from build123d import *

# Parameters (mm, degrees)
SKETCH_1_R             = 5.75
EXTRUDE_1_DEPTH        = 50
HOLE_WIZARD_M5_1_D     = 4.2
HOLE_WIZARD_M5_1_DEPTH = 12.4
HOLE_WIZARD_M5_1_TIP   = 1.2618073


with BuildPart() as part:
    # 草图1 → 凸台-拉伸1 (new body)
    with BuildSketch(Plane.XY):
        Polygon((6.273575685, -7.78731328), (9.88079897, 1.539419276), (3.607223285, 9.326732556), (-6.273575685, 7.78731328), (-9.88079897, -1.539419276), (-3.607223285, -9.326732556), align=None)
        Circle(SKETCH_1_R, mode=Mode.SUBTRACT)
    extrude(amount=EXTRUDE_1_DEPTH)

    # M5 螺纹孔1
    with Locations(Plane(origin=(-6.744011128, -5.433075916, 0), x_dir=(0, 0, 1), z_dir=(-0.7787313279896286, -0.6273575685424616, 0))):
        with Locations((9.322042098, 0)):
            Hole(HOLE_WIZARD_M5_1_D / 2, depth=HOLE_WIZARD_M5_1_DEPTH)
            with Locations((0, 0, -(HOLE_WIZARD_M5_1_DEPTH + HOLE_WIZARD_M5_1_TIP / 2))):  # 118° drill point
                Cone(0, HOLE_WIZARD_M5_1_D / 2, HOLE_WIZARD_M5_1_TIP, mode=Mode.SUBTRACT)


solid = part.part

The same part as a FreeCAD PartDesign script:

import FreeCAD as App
import Part
import Sketcher
Q = App.Units.Quantity


def add_polygon(sketch, points):
    """Adds a closed chain of lines whose ends are joined by coincident constraints."""
    first, n = sketch.GeometryCount, len(points)
    for a, b in zip(points, points[1:] + points[:1]):
        sketch.addGeometry(Part.LineSegment(App.Vector(*a, 0), App.Vector(*b, 0)), False)
    for i in range(n):
        sketch.addConstraint(Sketcher.Constraint("Coincident", first + i, 2, first + (i + 1) % n, 1))

doc = App.newDocument("Part")
params = doc.addObject("Spreadsheet::Sheet", "Params")
for row, (alias, value) in enumerate([
    ("sketch1_diameter", "11.5 mm"),
    ("sketch1_length", "10 mm"),
    ("pad1_length", "50 mm"),
    ("sketch2_diameter", "4.2 mm"),
    ("hole_diameter", "4.2 mm"),
    ("hole_depth", "12.4 mm"),
], start=1):
    params.set(f"A{row}", alias)
    params.set(f"B{row}", "=" + value)
    params.setAlias(f"B{row}", alias)

body = doc.addObject("PartDesign::Body", "Body")

sketch1 = body.newObject("Sketcher::SketchObject", "Sketch")
sketch1.AttachmentSupport = (doc.getObject("XY_Plane"), [""])
sketch1.MapMode = "FlatFace"
add_polygon(sketch1, [(6.273576, -7.787313), (9.880799, 1.539419), (3.607223, 9.326733), (-6.273576, 7.787313), (-9.880799, -1.539419), (-3.607223, -9.326733)])
sketch1.addGeometry(Part.Circle(App.Vector(0, 0, 0), App.Vector(0, 0, 1), 5.75), False)
sketch1.addConstraint([
    Sketcher.Constraint("Coincident", 6, 3, -1, 1),
    Sketcher.Constraint("Symmetric", 0, 2, 3, 2, -1, 1),
    Sketcher.Constraint("Symmetric", 1, 2, 4, 2, -1, 1),
    Sketcher.Constraint("Symmetric", 2, 2, 5, 2, -1, 1),
    Sketcher.Constraint("Equal", 0, 1),
    Sketcher.Constraint("Equal", 1, 2),
    Sketcher.Constraint("Diameter", 6, Q("11.5 mm")),
    Sketcher.Constraint("Distance", 0, Q("10 mm")),
    Sketcher.Constraint("DistanceX", -1, 1, 0, 2, Q("9.880799 mm")),
    Sketcher.Constraint("DistanceX", 2, 2, 1, 2, Q("9.880799 mm")),
    Sketcher.Constraint("DistanceY", -1, 1, 0, 2, Q("1.539419 mm")),
])
sketch1.setExpression("Constraints[12]", "Params.sketch1_diameter")
sketch1.setExpression("Constraints[13]", "Params.sketch1_length")
pad1 = body.newObject("PartDesign::Pad", "Pad")
pad1.Profile = sketch1
pad1.setExpression("Length", "Params.pad1_length")

sketch2 = body.newObject("Sketcher::SketchObject", "Sketch001")
sketch2.Placement = App.Placement(App.Vector(-6.744011, -5.433076, 0), App.Rotation(App.Vector(0, 0, 1), App.Vector(-0.627357569, 0.778731328, 0), App.Vector(-0.778731328, -0.627357569, 0), "ZXY"))
sketch2.addGeometry(Part.Circle(App.Vector(9.322042, 0, 0), App.Vector(0, 0, 1), 2.1), False)
sketch2.addConstraint([
    Sketcher.Constraint("PointOnObject", 0, 3, -1),
    Sketcher.Constraint("Diameter", 0, Q("4.2 mm")),
    Sketcher.Constraint("DistanceX", -1, 1, 0, 3, Q("9.322042 mm")),
])
sketch2.setExpression("Constraints[1]", "Params.sketch2_diameter")
doc.recompute()
hole = body.newObject("PartDesign::Hole", "Hole")
hole.Profile = sketch2
hole.ThreadType = "None"
hole.setExpression("Diameter", "Params.hole_diameter")
hole.DepthType = "Dimension"
hole.setExpression("Depth", "Params.hole_depth")
hole.DrillPoint = "Angled"
hole.DrillPointAngle = 118

doc.recompute()
